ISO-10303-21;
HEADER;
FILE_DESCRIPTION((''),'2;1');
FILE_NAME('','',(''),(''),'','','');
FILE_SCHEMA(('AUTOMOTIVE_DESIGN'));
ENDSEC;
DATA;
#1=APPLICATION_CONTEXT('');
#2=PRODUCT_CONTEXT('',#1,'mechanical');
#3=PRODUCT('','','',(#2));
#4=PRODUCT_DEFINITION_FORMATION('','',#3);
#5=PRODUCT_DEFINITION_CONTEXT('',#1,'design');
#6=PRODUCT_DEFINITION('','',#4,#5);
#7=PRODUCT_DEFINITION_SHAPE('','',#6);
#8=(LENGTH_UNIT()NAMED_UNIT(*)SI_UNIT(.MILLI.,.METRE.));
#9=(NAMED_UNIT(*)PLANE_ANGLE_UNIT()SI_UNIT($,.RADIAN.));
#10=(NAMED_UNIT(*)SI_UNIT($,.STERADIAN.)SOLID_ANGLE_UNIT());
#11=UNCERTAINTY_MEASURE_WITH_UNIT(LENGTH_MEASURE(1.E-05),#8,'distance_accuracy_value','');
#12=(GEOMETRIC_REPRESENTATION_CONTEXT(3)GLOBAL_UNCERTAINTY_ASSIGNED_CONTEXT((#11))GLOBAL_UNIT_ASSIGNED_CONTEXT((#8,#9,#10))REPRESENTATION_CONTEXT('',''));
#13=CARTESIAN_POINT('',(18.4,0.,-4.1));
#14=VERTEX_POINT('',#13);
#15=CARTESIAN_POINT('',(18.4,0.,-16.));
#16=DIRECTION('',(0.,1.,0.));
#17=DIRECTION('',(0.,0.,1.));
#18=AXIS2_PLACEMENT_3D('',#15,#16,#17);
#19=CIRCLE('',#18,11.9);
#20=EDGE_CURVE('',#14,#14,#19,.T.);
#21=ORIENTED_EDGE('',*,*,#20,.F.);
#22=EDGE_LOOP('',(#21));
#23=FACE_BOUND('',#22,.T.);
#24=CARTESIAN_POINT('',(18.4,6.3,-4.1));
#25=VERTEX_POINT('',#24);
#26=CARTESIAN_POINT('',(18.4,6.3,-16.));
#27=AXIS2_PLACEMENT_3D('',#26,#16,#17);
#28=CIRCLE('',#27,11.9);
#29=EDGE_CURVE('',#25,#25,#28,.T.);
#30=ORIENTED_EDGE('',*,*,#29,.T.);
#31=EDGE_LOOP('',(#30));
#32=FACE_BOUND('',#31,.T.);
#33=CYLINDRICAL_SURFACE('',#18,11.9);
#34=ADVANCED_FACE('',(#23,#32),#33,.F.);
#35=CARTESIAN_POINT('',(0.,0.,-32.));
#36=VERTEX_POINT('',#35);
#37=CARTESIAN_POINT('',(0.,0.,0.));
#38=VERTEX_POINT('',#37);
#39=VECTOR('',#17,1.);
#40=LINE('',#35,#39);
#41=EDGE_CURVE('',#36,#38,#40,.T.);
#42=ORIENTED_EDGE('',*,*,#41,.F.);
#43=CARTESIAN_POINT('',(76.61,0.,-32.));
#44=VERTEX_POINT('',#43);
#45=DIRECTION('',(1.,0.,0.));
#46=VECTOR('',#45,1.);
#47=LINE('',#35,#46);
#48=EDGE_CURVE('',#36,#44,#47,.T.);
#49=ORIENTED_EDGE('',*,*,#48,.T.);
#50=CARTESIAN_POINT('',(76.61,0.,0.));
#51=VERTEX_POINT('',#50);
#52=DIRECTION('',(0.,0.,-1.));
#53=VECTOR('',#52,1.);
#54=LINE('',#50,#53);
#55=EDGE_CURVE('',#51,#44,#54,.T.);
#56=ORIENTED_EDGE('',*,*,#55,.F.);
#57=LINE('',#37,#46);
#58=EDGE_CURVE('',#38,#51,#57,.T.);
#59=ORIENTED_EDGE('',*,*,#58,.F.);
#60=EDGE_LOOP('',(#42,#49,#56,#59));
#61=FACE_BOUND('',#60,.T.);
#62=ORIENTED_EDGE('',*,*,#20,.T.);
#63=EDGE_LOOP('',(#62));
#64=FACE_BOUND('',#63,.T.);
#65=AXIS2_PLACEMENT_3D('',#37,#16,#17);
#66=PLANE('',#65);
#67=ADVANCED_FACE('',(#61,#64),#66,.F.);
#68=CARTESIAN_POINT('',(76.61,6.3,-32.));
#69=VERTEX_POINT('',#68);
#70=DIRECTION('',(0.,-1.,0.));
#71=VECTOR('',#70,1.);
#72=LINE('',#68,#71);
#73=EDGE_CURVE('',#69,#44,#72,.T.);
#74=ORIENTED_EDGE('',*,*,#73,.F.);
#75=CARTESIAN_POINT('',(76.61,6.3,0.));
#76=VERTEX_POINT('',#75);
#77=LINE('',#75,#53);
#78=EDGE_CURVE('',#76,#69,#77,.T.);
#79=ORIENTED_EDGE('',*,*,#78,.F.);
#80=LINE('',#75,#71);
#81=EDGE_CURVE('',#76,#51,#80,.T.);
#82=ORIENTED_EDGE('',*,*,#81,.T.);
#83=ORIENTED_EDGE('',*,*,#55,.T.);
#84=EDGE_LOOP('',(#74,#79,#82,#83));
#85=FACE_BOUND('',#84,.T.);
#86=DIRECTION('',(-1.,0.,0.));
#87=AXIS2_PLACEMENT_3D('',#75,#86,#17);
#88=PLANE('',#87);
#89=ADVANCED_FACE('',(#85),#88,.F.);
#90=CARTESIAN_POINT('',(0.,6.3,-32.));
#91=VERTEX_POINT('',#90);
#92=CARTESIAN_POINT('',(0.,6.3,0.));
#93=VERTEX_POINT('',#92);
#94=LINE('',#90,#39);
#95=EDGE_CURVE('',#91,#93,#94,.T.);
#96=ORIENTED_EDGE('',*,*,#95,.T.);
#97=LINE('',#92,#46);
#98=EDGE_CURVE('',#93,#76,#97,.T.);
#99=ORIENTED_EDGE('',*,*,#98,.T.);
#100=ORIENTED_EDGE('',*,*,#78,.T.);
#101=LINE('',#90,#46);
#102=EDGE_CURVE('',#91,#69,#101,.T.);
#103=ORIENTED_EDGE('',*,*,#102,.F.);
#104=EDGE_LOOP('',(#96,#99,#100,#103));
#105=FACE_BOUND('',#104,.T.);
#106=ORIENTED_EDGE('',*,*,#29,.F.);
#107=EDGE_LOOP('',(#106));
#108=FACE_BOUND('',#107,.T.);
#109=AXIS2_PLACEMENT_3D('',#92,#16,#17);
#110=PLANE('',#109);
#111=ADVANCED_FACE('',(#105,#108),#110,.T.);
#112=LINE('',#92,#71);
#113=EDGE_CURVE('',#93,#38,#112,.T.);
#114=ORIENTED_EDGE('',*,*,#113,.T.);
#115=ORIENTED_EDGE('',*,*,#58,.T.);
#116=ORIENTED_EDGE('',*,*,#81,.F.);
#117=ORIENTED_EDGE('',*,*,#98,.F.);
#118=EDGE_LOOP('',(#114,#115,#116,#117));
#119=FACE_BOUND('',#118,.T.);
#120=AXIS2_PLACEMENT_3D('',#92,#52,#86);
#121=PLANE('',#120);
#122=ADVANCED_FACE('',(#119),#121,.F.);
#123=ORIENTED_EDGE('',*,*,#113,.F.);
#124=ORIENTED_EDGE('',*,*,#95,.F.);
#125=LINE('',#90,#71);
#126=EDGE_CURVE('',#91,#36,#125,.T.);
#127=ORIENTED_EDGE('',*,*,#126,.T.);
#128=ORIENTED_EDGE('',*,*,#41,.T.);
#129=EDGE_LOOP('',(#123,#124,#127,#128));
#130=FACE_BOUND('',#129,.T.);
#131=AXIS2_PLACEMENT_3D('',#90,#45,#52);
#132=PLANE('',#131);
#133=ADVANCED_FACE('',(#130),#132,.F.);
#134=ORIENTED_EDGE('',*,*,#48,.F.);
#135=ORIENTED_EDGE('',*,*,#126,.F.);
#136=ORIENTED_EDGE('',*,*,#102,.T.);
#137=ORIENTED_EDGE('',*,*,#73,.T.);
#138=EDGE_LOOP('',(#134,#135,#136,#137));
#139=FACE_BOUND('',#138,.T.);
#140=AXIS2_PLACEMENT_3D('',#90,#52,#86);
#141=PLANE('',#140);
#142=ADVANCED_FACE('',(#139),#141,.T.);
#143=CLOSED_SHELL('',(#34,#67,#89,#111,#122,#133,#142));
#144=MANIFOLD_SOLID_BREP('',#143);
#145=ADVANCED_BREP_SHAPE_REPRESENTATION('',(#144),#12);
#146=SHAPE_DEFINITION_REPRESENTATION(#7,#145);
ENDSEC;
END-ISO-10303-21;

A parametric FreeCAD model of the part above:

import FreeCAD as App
import Part
import Sketcher
from FreeCAD import Vector
Q = App.Units.Quantity


def add_polygon(sketch, points):
    """Adds a closed chain of lines whose ends are joined by coincident constraints."""
    first, n = sketch.GeometryCount, len(points)
    for a, b in zip(points, points[1:] + points[:1]):
        sketch.addGeometry(Part.LineSegment(App.Vector(*a, 0), App.Vector(*b, 0)), False)
    for i in range(n):
        sketch.addConstraint(Sketcher.Constraint("Coincident", first + i, 2, first + (i + 1) % n, 1))

doc = App.newDocument("Part")
body = doc.addObject("PartDesign::Body", "Body")

sketch1 = body.newObject("Sketcher::SketchObject", "Sketch")
sketch1.AttachmentSupport = (doc.getObject("XZ_Plane"), [""])
sketch1.MapMode = "FlatFace"
add_polygon(sketch1, [(0, -32), (0, 0), (76.61, 0), (76.61, -32)])
sketch1.addConstraint([
    Sketcher.Constraint("Vertical", 0),
    Sketcher.Constraint("Horizontal", 1),
    Sketcher.Constraint("Vertical", 2),
    Sketcher.Constraint("Horizontal", 3),
    Sketcher.Constraint("Coincident", 0, 2, -1, 1),
    Sketcher.Constraint("DistanceY", 0, 1, 0, 2, Q("32 mm")),
    Sketcher.Constraint("DistanceX", 1, 1, 1, 2, Q("76.61 mm")),
])
pad1 = body.newObject("PartDesign::Pad", "Pad")
pad1.Profile = sketch1
pad1.Length = 6.3
pad1.Reversed = True

sketch2 = body.newObject("Sketcher::SketchObject", "Sketch001")
sketch2.AttachmentSupport = (doc.getObject("XZ_Plane"), [""])
sketch2.MapMode = "FlatFace"
sketch2.AttachmentOffset = App.Placement(Vector(0, 0, -6.3), App.Rotation())
sketch2.addGeometry(Part.Circle(Vector(18.4, -16, 0), Vector(0, 0, 1), 11.9), False)
sketch2.addConstraint([
    Sketcher.Constraint("Diameter", 0, Q("23.8 mm")),
    Sketcher.Constraint("DistanceY", 0, 3, -1, 1, Q("16 mm")),
    Sketcher.Constraint("DistanceX", -1, 1, 0, 3, Q("18.4 mm")),
])
pocket1 = body.newObject("PartDesign::Pocket", "Pocket")
pocket1.Profile = sketch2
pocket1.Length = 6.3
pocket1.Reversed = True

doc.recompute()
